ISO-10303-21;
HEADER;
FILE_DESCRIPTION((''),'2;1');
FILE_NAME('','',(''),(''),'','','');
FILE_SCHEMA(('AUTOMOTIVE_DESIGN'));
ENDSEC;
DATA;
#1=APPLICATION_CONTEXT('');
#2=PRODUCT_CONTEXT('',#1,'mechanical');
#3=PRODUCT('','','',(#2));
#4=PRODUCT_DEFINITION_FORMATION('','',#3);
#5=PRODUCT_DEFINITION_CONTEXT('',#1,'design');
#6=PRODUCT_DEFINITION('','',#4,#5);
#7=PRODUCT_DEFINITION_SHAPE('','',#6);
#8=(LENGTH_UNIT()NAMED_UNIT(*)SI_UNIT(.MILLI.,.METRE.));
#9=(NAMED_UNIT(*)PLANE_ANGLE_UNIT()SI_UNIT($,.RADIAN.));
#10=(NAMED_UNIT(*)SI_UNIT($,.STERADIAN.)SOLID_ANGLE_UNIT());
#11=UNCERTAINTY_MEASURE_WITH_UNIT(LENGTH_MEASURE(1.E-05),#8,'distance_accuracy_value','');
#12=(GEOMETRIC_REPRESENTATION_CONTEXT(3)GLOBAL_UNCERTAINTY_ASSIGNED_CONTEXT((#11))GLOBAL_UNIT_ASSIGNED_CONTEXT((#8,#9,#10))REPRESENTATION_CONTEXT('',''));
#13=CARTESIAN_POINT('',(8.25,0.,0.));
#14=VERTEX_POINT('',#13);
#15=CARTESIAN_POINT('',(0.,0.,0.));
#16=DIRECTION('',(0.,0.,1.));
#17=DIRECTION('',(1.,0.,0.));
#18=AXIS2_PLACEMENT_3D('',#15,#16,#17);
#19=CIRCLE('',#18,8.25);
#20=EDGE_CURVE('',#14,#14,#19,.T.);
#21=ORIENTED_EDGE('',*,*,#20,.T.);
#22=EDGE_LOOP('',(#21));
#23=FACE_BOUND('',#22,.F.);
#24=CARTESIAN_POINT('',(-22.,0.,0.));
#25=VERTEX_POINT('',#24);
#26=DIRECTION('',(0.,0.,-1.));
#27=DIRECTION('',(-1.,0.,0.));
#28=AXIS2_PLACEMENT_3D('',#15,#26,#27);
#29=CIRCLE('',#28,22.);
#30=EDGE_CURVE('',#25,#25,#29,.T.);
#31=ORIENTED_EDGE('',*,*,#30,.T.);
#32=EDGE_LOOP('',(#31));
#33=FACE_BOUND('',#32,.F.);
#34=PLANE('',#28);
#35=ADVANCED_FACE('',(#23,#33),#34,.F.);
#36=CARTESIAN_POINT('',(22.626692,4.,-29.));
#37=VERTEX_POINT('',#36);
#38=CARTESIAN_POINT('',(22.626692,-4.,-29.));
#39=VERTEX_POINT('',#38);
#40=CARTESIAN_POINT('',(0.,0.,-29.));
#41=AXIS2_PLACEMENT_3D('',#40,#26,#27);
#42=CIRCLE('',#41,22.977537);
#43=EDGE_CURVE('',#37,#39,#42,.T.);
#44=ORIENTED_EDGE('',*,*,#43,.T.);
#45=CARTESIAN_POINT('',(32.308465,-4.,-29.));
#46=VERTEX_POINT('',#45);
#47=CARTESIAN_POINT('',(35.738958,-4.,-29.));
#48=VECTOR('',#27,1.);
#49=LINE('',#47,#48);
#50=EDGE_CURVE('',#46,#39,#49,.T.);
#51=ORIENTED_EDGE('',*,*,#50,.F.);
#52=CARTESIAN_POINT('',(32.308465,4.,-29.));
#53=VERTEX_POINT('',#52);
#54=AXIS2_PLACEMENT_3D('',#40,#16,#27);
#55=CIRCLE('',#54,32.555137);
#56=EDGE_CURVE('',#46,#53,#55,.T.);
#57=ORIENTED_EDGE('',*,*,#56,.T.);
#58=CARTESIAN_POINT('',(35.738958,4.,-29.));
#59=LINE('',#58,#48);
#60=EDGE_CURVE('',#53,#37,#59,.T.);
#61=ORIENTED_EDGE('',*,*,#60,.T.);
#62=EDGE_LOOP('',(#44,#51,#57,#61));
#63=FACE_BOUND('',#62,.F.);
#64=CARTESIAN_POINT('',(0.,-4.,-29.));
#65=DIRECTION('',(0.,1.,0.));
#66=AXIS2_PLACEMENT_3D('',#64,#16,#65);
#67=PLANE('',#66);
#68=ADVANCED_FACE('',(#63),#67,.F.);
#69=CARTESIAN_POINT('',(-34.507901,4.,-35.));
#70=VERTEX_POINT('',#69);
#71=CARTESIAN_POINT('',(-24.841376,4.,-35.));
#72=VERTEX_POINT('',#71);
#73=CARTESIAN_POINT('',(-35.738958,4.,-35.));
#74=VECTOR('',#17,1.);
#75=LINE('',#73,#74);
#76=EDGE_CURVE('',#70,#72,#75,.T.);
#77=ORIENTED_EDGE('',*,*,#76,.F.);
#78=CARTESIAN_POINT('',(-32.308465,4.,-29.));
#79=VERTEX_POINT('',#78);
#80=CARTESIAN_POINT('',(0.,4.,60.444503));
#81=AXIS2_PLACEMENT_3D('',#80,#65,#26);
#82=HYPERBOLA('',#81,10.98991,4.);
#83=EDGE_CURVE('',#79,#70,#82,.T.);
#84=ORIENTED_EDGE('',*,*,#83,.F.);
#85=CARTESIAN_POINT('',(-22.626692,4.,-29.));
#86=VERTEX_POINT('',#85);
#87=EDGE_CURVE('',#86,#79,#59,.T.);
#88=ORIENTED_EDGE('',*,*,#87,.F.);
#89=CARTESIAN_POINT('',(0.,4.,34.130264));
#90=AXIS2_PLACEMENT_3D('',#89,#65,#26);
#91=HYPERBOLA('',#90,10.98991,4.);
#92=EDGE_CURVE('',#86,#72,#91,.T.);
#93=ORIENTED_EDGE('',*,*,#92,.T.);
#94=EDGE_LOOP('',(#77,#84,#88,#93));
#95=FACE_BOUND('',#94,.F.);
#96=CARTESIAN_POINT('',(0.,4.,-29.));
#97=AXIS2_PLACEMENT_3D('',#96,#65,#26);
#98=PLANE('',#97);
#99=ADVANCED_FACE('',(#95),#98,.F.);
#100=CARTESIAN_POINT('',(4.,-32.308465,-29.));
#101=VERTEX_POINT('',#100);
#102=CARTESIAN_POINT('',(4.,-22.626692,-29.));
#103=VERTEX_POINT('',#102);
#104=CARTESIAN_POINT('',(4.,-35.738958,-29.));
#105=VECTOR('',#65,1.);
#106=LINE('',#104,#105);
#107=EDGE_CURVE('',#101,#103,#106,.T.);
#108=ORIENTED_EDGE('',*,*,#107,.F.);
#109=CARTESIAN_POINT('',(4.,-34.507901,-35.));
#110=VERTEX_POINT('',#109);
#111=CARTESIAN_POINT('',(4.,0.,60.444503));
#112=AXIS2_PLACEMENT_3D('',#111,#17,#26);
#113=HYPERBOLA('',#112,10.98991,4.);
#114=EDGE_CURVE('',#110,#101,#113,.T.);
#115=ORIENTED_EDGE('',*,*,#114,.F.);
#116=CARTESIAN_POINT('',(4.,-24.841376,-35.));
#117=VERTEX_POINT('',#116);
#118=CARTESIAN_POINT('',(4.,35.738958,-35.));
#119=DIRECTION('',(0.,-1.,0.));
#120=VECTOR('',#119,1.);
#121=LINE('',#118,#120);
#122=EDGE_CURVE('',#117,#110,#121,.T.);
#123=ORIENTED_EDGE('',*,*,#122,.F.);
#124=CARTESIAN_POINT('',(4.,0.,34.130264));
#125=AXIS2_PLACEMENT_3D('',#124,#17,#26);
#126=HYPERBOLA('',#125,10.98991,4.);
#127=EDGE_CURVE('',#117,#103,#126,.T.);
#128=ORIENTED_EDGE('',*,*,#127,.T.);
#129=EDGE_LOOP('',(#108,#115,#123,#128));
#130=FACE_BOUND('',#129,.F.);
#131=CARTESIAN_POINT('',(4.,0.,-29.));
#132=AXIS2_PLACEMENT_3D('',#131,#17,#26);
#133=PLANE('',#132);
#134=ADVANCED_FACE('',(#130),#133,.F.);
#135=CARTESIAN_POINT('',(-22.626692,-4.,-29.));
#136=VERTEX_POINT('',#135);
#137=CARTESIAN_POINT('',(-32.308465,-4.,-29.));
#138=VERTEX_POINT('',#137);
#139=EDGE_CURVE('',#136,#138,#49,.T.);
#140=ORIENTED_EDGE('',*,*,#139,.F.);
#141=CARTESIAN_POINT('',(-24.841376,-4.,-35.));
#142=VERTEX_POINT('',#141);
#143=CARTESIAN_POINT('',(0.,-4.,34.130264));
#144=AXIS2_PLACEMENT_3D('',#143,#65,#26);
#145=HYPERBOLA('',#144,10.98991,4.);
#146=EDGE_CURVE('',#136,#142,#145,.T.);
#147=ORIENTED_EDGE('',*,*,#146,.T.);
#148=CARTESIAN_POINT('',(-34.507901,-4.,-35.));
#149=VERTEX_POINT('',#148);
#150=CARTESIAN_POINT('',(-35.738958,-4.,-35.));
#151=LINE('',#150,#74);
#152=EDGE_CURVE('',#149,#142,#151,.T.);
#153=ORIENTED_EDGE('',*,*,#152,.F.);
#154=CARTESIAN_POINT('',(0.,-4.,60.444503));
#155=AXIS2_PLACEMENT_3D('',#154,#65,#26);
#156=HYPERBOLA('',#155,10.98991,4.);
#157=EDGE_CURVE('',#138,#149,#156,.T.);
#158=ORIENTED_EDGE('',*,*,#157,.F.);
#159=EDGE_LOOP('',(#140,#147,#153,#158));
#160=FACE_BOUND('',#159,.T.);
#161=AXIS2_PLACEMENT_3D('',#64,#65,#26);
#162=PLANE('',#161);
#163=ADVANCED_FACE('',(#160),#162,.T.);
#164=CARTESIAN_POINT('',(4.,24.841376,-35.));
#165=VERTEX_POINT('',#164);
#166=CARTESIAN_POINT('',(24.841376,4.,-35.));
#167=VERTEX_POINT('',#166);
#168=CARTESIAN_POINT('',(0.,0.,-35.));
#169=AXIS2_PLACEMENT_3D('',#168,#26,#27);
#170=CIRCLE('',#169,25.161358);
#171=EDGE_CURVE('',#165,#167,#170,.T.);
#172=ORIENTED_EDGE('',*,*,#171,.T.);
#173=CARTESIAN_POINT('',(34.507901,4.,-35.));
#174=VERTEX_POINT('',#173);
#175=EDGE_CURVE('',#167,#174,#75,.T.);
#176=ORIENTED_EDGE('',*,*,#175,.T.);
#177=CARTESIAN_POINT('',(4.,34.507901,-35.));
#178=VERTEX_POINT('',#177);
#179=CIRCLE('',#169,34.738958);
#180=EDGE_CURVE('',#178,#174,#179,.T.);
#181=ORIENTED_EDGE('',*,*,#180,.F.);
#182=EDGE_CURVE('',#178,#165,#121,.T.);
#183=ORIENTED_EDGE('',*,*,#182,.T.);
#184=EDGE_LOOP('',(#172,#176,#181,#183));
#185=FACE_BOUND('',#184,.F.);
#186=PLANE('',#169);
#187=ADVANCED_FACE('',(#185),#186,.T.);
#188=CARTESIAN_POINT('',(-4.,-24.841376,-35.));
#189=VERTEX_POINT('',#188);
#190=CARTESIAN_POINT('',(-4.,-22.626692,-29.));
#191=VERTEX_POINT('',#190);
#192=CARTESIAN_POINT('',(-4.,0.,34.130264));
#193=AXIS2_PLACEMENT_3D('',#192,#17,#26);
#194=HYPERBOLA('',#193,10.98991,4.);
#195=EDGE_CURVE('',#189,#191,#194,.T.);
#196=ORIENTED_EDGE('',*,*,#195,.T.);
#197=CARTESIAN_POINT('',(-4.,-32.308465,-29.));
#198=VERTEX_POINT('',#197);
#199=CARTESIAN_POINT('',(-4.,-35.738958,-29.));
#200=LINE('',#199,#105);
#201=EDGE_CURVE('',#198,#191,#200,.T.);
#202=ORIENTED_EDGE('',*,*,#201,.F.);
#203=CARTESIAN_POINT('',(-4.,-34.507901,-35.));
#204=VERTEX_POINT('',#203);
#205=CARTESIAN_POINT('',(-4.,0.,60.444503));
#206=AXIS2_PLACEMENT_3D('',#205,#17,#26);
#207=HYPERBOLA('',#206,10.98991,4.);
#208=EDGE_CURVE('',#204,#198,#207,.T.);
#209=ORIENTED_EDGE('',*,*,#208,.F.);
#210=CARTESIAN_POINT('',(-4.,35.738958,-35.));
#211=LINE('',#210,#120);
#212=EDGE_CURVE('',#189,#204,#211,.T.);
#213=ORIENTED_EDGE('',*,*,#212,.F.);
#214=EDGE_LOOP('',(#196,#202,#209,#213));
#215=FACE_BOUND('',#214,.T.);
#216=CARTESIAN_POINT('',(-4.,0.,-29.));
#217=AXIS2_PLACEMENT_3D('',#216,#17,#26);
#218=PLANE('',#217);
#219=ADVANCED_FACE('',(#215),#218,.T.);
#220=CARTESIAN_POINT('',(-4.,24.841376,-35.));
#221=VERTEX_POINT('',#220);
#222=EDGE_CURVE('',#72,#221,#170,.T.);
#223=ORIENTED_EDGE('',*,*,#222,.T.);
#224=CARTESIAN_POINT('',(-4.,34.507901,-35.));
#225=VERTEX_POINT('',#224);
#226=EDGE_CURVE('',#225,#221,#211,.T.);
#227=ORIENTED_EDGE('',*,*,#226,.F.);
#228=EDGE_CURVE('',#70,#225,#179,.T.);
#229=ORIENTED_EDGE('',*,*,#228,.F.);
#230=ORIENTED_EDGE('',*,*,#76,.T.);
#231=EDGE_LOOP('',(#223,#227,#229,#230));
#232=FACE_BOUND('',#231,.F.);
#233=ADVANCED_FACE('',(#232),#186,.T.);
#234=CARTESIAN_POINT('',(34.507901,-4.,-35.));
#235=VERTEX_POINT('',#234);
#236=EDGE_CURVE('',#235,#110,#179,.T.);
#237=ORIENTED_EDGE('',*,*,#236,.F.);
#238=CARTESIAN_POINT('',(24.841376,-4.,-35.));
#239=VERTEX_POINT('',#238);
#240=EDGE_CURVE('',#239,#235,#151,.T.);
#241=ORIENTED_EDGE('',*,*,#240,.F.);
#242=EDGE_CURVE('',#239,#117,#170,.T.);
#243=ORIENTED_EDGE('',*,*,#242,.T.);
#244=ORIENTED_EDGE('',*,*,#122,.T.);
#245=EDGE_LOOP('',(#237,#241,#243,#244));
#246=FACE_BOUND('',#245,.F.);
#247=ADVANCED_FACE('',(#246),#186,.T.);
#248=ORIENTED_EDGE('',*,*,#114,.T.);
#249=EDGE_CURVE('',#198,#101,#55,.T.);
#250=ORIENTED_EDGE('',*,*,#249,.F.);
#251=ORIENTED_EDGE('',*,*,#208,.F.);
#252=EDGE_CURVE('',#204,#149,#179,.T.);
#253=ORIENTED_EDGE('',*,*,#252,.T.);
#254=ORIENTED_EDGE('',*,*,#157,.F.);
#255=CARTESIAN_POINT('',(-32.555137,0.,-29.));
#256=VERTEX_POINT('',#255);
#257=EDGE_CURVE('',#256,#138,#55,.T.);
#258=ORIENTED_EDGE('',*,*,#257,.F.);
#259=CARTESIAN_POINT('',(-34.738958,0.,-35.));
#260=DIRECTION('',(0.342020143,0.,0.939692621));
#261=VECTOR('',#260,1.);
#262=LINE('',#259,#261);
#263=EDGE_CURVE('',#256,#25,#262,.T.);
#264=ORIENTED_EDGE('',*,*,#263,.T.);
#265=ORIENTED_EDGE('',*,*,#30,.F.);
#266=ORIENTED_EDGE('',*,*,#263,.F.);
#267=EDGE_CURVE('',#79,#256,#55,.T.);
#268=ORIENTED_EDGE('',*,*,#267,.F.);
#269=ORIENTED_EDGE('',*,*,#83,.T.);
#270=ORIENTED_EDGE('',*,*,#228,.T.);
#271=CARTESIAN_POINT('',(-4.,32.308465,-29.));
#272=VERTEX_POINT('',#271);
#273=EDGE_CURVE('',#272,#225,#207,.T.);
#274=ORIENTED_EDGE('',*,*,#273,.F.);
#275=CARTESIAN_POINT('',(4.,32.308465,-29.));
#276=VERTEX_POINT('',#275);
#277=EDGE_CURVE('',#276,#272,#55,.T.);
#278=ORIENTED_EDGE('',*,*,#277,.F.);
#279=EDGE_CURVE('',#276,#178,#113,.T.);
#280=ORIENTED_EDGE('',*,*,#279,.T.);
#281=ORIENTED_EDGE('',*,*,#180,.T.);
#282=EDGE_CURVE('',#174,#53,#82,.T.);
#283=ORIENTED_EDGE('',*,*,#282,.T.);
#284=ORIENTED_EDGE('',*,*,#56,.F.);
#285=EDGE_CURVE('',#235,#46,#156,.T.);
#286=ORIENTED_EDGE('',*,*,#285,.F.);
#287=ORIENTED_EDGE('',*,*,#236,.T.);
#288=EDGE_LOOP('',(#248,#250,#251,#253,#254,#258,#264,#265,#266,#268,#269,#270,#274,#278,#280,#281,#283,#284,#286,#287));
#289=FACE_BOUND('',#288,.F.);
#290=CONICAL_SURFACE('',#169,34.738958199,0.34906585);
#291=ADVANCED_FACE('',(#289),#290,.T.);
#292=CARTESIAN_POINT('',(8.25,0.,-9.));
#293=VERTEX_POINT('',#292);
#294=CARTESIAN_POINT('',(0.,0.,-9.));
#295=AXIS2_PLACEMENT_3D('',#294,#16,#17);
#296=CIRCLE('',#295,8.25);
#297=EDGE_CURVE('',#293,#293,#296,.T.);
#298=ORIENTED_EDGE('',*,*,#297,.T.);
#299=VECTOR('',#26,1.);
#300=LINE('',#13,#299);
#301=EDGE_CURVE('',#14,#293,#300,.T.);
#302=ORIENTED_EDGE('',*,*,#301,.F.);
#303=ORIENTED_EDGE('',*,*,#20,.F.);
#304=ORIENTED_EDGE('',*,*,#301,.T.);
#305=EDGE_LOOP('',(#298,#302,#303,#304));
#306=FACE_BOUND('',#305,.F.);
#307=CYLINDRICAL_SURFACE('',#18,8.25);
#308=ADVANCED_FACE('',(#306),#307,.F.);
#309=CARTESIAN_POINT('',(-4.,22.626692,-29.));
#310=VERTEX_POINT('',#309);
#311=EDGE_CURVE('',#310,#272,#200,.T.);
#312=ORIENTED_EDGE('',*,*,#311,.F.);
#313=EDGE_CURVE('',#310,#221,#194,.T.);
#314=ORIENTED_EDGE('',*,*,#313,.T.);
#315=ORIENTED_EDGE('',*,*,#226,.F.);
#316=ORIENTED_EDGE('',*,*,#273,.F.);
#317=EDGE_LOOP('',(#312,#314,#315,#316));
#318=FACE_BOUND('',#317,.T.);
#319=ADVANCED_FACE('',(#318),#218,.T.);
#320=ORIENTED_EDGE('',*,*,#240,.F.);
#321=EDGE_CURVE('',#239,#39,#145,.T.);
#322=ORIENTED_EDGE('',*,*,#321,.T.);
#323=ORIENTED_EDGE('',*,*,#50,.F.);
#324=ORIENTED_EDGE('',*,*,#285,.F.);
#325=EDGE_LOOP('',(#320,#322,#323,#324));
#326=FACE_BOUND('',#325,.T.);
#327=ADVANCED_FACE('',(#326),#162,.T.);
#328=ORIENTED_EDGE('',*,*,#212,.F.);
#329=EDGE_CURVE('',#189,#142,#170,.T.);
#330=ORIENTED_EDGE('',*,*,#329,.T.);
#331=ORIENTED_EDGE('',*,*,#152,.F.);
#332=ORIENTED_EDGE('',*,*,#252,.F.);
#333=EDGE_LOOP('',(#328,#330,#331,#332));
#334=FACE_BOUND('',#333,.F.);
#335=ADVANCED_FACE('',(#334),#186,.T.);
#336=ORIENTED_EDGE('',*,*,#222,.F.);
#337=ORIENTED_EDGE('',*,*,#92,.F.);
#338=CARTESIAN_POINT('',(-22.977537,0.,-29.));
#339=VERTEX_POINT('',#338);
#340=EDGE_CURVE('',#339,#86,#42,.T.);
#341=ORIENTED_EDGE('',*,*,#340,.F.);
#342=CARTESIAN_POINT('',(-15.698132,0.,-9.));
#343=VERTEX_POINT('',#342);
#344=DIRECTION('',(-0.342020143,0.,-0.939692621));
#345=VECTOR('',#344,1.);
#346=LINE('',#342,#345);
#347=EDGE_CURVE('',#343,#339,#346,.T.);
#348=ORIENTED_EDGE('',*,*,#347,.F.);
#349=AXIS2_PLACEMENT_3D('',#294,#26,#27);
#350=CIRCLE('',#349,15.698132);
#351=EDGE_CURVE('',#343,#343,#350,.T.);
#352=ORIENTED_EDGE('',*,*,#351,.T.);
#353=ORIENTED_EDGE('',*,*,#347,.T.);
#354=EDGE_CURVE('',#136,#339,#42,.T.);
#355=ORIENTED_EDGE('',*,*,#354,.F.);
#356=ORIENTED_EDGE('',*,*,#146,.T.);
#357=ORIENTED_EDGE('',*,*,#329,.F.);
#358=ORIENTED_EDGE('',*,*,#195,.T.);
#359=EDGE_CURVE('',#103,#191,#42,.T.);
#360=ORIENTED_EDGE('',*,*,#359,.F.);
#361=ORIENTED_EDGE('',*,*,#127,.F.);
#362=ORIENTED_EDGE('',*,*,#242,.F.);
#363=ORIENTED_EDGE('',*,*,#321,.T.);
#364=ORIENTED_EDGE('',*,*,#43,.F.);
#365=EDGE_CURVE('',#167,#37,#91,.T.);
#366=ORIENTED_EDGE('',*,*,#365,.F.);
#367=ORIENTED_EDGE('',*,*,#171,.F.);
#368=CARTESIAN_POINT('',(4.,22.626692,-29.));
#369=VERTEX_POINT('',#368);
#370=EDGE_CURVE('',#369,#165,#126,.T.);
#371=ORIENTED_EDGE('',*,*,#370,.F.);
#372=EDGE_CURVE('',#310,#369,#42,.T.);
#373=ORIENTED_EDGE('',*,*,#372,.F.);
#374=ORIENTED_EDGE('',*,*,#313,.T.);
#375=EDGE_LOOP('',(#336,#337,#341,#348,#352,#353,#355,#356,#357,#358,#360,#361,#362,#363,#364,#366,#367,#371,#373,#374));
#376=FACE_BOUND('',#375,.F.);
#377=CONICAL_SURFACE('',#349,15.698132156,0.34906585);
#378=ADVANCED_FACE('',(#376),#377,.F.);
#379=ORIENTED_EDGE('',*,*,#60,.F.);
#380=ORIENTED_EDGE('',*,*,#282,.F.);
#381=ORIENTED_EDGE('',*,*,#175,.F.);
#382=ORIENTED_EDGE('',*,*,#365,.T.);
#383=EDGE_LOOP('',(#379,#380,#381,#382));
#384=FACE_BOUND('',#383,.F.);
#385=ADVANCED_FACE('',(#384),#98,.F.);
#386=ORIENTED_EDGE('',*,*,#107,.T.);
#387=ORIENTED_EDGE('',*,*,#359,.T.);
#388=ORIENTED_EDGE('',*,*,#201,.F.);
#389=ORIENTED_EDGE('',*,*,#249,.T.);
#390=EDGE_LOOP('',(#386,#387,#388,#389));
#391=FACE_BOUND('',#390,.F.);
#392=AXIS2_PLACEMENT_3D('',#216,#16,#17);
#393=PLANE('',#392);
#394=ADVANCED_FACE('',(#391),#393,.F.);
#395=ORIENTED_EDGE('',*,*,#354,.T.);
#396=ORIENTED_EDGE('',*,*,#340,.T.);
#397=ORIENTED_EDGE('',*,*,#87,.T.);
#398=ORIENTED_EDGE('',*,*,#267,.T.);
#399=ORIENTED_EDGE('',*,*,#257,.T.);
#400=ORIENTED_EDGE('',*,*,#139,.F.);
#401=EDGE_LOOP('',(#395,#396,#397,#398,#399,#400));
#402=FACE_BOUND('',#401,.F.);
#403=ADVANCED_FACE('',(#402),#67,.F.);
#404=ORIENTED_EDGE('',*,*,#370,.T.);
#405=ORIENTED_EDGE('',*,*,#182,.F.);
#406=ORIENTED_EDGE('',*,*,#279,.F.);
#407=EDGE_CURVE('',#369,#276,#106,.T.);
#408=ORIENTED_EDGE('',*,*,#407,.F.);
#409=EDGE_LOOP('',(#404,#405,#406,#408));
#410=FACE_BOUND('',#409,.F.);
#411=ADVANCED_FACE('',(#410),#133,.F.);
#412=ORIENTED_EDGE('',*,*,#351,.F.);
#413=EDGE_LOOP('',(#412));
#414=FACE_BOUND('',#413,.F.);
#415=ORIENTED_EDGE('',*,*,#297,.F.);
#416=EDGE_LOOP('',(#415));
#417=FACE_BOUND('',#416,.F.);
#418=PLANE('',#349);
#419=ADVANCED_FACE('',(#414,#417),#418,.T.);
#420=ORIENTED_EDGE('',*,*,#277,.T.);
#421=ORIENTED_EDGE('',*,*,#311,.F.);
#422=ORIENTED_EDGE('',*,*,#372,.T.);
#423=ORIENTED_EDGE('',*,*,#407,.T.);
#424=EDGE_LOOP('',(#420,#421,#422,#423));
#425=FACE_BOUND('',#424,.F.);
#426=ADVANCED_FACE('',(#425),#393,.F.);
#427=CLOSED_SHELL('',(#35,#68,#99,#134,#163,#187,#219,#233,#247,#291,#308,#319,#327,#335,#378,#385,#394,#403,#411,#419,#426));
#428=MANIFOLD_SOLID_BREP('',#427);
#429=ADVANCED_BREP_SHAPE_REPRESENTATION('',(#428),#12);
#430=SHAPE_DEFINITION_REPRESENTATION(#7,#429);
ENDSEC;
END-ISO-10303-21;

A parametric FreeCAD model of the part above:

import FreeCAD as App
import Part
import Sketcher
from FreeCAD import Vector
Q = App.Units.Quantity

doc = App.newDocument("Part")
body = doc.addObject("PartDesign::Body", "Body")

# Sketch on XZ plane
sketch1 = doc.addObject("Sketcher::SketchObject", "Sketch")
body.addObject(sketch1)
sketch1.AttachmentSupport = (doc.XZ_Plane, [""])
sketch1.MapMode = "FlatFace"
sketch1.addGeometry([
    Part.LineSegment(Vector(-22, 0, 0), Vector(0, 0, 0)),  # 0
    Part.LineSegment(Vector(0, 0, 0), Vector(0, -9, 0)),  # 1
    Part.LineSegment(Vector(0, -9, 0), Vector(-15.698132, -9, 0)),  # 2
    Part.LineSegment(Vector(-15.698132, -9, 0), Vector(-25.161358, -35, 0)),  # 3
    Part.LineSegment(Vector(-25.161358, -35, 0), Vector(-34.738958, -35, 0)),  # 4
    Part.LineSegment(Vector(-34.738958, -35, 0), Vector(-22, 0, 0)),  # 5
], False)
sketch1.addConstraint([
    Sketcher.Constraint("Coincident", 0, 2, 1, 1),
    Sketcher.Constraint("Coincident", 1, 2, 2, 1),
    Sketcher.Constraint("Coincident", 2, 2, 3, 1),
    Sketcher.Constraint("Coincident", 3, 2, 4, 1),
    Sketcher.Constraint("Coincident", 4, 2, 5, 1),
    Sketcher.Constraint("Coincident", 5, 2, 0, 1),
    Sketcher.Constraint("Horizontal", 0),
    Sketcher.Constraint("Vertical", 1),
    Sketcher.Constraint("Horizontal", 2),
    Sketcher.Constraint("Horizontal", 4),
    Sketcher.Constraint("Coincident", 0, 2, -1, 1),
    Sketcher.Constraint("Parallel", 3, 5),
    Sketcher.Constraint("DistanceX", 0, 1, 0, 2, Q("22 mm")),
    Sketcher.Constraint("DistanceY", 1, 2, 1, 1, Q("9 mm")),
    Sketcher.Constraint("Angle", 3, Q("-110 deg")),
    Sketcher.Constraint("DistanceY", 3, 2, -1, 1, Q("35 mm")),
    Sketcher.Constraint("DistanceX", 4, 2, 4, 1, Q("9.5776 mm")),
])
revolution = doc.addObject("PartDesign::Revolution", "Revolution")
body.addObject(revolution)
revolution.Profile = sketch1
revolution.ReferenceAxis = (sketch1, ["V_Axis"])
revolution.Angle = 360

# Sketch on XY plane
sketch2 = doc.addObject("Sketcher::SketchObject", "Sketch001")
body.addObject(sketch2)
sketch2.AttachmentSupport = (doc.XY_Plane, [""])
sketch2.MapMode = "FlatFace"
sketch2.addGeometry(Part.Circle(Vector(0, 0, 0), Vector(0, 0, 1), 8.25), False)
sketch2.addConstraint([
    Sketcher.Constraint("Coincident", 0, 3, -1, 1),
    Sketcher.Constraint("Diameter", 0, Q("16.5 mm")),
])
pocket1 = doc.addObject("PartDesign::Pocket", "Pocket")
body.addObject(pocket1)
pocket1.Profile = sketch2
pocket1.Type = "UpToFirst"

# Sketch on XZ plane
sketch3 = doc.addObject("Sketcher::SketchObject", "Sketch002")
body.addObject(sketch3)
sketch3.AttachmentSupport = (doc.XZ_Plane, [""])
sketch3.MapMode = "FlatFace"
sketch3.addGeometry([
    Part.LineSegment(Vector(-4, -35, 0), Vector(-4, -29, 0)),
    Part.LineSegment(Vector(-4, -29, 0), Vector(4, -29, 0)),
    Part.LineSegment(Vector(4, -29, 0), Vector(4, -35, 0)),
    Part.LineSegment(Vector(4, -35, 0), Vector(-4, -35, 0)),
], False)
sketch3.addConstraint([
    Sketcher.Constraint("Coincident", 0, 2, 1, 1),
    Sketcher.Constraint("Coincident", 1, 2, 2, 1),
    Sketcher.Constraint("Coincident", 2, 2, 3, 1),
    Sketcher.Constraint("Coincident", 3, 2, 0, 1),
    Sketcher.Constraint("Vertical", 0),
    Sketcher.Constraint("Horizontal", 1),
    Sketcher.Constraint("Vertical", 2),
    Sketcher.Constraint("Horizontal", 3),
    Sketcher.Constraint("DistanceX", 1, 1, 1, 2, Q("8 mm")),
    Sketcher.Constraint("DistanceY", 0, 1, 0, 2, Q("6 mm")),
    Sketcher.Constraint("DistanceX", 0, 2, -1, 1, Q("4 mm")),
    Sketcher.Constraint("DistanceY", 0, 2, -1, 1, Q("29 mm")),
])
pocket2 = doc.addObject("PartDesign::Pocket", "Pocket001")
body.addObject(pocket2)
pocket2.Profile = sketch3
pocket2.Length = 71.477916
pocket2.Midplane = True
doc.recompute()

polarpattern = doc.addObject("PartDesign::PolarPattern", "PolarPattern")
body.addObject(polarpattern)
polarpattern.Originals = [pocket2]
polarpattern.Axis = (doc.Z_Axis, [""])
polarpattern.Angle = 360
polarpattern.Occurrences = 4
body.Tip = polarpattern

doc.recompute()
